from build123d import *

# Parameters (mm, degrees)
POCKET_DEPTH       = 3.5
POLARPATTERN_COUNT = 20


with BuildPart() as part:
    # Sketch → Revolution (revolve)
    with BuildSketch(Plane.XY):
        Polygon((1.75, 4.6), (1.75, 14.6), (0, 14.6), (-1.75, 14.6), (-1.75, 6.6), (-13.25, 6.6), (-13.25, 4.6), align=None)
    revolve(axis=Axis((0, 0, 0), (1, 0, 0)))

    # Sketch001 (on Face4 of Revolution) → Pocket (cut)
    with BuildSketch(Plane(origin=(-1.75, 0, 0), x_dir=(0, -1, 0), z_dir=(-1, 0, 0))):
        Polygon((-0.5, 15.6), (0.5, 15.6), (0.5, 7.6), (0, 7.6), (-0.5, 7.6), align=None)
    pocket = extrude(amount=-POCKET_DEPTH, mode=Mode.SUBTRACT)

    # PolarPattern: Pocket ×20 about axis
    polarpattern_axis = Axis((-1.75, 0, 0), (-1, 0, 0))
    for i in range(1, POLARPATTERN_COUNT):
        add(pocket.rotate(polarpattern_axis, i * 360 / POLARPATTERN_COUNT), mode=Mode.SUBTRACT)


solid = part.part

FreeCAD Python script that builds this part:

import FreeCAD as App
import Part
import Sketcher
from FreeCAD import Vector
Q = App.Units.Quantity

doc = App.newDocument("Part")
body = doc.addObject("PartDesign::Body", "Body")

# Sketch on XY plane
sketch1 = body.newObject("Sketcher::SketchObject", "Sketch")
sketch1.AttachmentSupport = (doc.getObject("XY_Plane"), [""])
sketch1.MapMode = "FlatFace"
sketch1.addGeometry([
    Part.LineSegment(Vector(1.75, 4.6, 0), Vector(1.75, 14.6, 0)),  # 0
    Part.LineSegment(Vector(1.75, 14.6, 0), Vector(-1.75, 14.6, 0)),  # 1
    Part.LineSegment(Vector(-1.75, 14.6, 0), Vector(-1.75, 6.6, 0)),  # 2
    Part.LineSegment(Vector(-1.75, 6.6, 0), Vector(-13.25, 6.6, 0)),  # 3
    Part.LineSegment(Vector(-13.25, 6.6, 0), Vector(-13.25, 4.6, 0)),  # 4
    Part.LineSegment(Vector(-13.25, 4.6, 0), Vector(1.75, 4.6, 0)),  # 5
], False)
sketch1.addConstraint([
    Sketcher.Constraint("Coincident", 0, 2, 1, 1),
    Sketcher.Constraint("Coincident", 1, 2, 2, 1),
    Sketcher.Constraint("Coincident", 2, 2, 3, 1),
    Sketcher.Constraint("Coincident", 3, 2, 4, 1),
    Sketcher.Constraint("Coincident", 4, 2, 5, 1),
    Sketcher.Constraint("Coincident", 5, 2, 0, 1),
    Sketcher.Constraint("Vertical", 0),
    Sketcher.Constraint("Horizontal", 1),
    Sketcher.Constraint("Vertical", 2),
    Sketcher.Constraint("Horizontal", 3),
    Sketcher.Constraint("Vertical", 4),
    Sketcher.Constraint("Horizontal", 5),
    Sketcher.Constraint("DistanceX", 5, 1, 5, 2, Q("15 mm")),
    Sketcher.Constraint("DistanceY", 0, 1, 0, 2, Q("10 mm")),
    Sketcher.Constraint("DistanceY", 2, 2, 2, 1, Q("8 mm")),
    Sketcher.Constraint("DistanceX", 1, 2, 1, 1, Q("3.5 mm")),
    Sketcher.Constraint("DistanceY", -1, 1, 0, 2, Q("14.6 mm")),
    Sketcher.Constraint("DistanceX", -1, 1, 0, 2, Q("1.75 mm")),
])
revolution = body.newObject("PartDesign::Revolution", "Revolution")
revolution.Profile = sketch1
revolution.ReferenceAxis = (sketch1, ["H_Axis"])
revolution.Angle = 360

# Sketch on YZ plane
sketch2 = body.newObject("Sketcher::SketchObject", "Sketch001")
sketch2.AttachmentSupport = (doc.getObject("YZ_Plane"), [""])
sketch2.MapMode = "FlatFace"
sketch2.AttachmentOffset = App.Placement(Vector(0, 0, -1.75), App.Rotation())
sketch2.addGeometry([
    Part.LineSegment(Vector(-0.5, 15.6, 0), Vector(0.5, 15.6, 0)),
    Part.LineSegment(Vector(0.5, 15.6, 0), Vector(0.5, 7.6, 0)),
    Part.LineSegment(Vector(0.5, 7.6, 0), Vector(-0.5, 7.6, 0)),
    Part.LineSegment(Vector(-0.5, 7.6, 0), Vector(-0.5, 15.6, 0)),
], False)
sketch2.addConstraint([
    Sketcher.Constraint("Coincident", 0, 2, 1, 1),
    Sketcher.Constraint("Coincident", 1, 2, 2, 1),
    Sketcher.Constraint("Coincident", 2, 2, 3, 1),
    Sketcher.Constraint("Coincident", 3, 2, 0, 1),
    Sketcher.Constraint("Horizontal", 0),
    Sketcher.Constraint("Vertical", 1),
    Sketcher.Constraint("Horizontal", 2),
    Sketcher.Constraint("Vertical", 3),
    Sketcher.Constraint("DistanceX", 0, 1, 0, 2, Q("1 mm")),
    Sketcher.Constraint("DistanceY", 1, 2, 1, 1, Q("8 mm")),
    Sketcher.Constraint("DistanceX", -1, 1, 0, 2, Q("0.5 mm")),
    Sketcher.Constraint("DistanceY", -1, 1, 0, 2, Q("15.6 mm")),
])
pocket1 = body.newObject("PartDesign::Pocket", "Pocket")
pocket1.Profile = sketch2
pocket1.Length = 3.5
pocket1.Reversed = True
doc.recompute()

polarpattern = body.newObject("PartDesign::PolarPattern", "PolarPattern")
polarpattern.Originals = [pocket1]
polarpattern.Axis = (doc.getObject("X_Axis"), [""])
polarpattern.Angle = 360
polarpattern.Occurrences = 20
body.Tip = polarpattern

doc.recompute()
